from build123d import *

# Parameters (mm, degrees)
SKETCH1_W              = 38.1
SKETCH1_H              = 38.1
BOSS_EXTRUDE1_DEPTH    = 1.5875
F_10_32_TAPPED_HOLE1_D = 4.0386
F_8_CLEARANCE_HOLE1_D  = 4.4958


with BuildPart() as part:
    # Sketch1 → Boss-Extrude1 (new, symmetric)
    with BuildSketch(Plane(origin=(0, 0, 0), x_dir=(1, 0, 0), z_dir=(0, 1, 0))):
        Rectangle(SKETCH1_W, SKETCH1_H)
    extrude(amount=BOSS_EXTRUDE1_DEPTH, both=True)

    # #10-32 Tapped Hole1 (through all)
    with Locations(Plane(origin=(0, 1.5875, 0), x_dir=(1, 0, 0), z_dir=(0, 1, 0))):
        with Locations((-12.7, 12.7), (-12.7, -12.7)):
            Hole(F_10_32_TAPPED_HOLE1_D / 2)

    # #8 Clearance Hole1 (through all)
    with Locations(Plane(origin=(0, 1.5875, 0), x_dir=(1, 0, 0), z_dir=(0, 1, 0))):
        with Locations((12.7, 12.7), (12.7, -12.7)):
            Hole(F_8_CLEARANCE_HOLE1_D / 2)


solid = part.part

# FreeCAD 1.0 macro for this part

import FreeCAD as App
import Part
import Sketcher

V = App.Vector
Q = App.Units.Quantity

doc = App.newDocument("Part")
params = doc.addObject("Spreadsheet::Sheet", "Params")
for row, (alias, value) in enumerate([
    ("sketch1_width", "1.5 in"),
    ("pad1_length", "0.125 in"),
    ("sketch2_diameter", "0.159 in"),
    ("hole_diameter", "0.159 in"),
    ("sketch3_diameter", "0.177 in"),
    ("hole2_diameter", "0.177 in"),
], start=1):
    params.set(f"A{row}", alias)
    params.set(f"B{row}", "=" + value)
    params.setAlias(f"B{row}", alias)

body = doc.addObject("PartDesign::Body", "Body")

# Sketch on XZ plane
sketch1 = body.newObject("Sketcher::SketchObject", "Sketch")
sketch1.AttachmentSupport = (doc.getObject("XZ_Plane"), [""])
sketch1.MapMode = "FlatFace"
sketch1.addGeometry([
    Part.LineSegment(V(-19.05, -19.05, 0), V(-19.05, 19.05, 0)),
    Part.LineSegment(V(-19.05, 19.05, 0), V(19.05, 19.05, 0)),
    Part.LineSegment(V(19.05, 19.05, 0), V(19.05, -19.05, 0)),
    Part.LineSegment(V(19.05, -19.05, 0), V(-19.05, -19.05, 0)),
], False)
sketch1.addConstraint([
    Sketcher.Constraint("Coincident", 0, 2, 1, 1),
    Sketcher.Constraint("Coincident", 1, 2, 2, 1),
    Sketcher.Constraint("Coincident", 2, 2, 3, 1),
    Sketcher.Constraint("Coincident", 3, 2, 0, 1),
    Sketcher.Constraint("Vertical", 0),
    Sketcher.Constraint("Horizontal", 1),
    Sketcher.Constraint("Vertical", 2),
    Sketcher.Constraint("Horizontal", 3),
    Sketcher.Constraint("Symmetric", 0, 2, 2, 2, -1, 1),
    Sketcher.Constraint("Equal", 3, 0),
    Sketcher.Constraint("DistanceX", 1, 1, 1, 2, Q("1.5 in")),
])
sketch1.setExpression("Constraints[10]", "Params.sketch1_width")
pad1 = body.newObject("PartDesign::Pad", "Pad")
pad1.Profile = sketch1
pad1.setExpression("Length", "Params.pad1_length")
pad1.Midplane = True

# Sketch on XZ plane
sketch2 = body.newObject("Sketcher::SketchObject", "Sketch001")
sketch2.AttachmentSupport = (doc.getObject("XZ_Plane"), [""])
sketch2.MapMode = "FlatFace"
sketch2.AttachmentOffset = App.Placement(V(0, 0, -0.0625 * 25.4), App.Rotation())
sketch2.addGeometry([
    Part.Circle(V(-12.7, -12.7, 0), V(0, 0, 1), 2.0193),
    Part.Circle(V(-12.7, 12.7, 0), V(0, 0, 1), 2.0193),
], False)
sketch2.addConstraint([
    Sketcher.Constraint("Equal", 0, 1),
    Sketcher.Constraint("Symmetric", 0, 3, 1, 3, -1),
    Sketcher.Constraint("Diameter", 0, Q("0.159 in")),
    Sketcher.Constraint("DistanceY", 0, 3, 1, 3, Q("1 in")),
    Sketcher.Constraint("DistanceX", 0, 3, -1, 1, Q("0.5 in")),
])
sketch2.setExpression("Constraints[2]", "Params.sketch2_diameter")
doc.recompute()
hole = body.newObject("PartDesign::Hole", "Hole")
hole.Profile = sketch2
hole.ThreadType = "None"
hole.setExpression("Diameter", "Params.hole_diameter")
hole.DepthType = "ThroughAll"
hole.Reversed = True

# Sketch on XZ plane
sketch3 = body.newObject("Sketcher::SketchObject", "Sketch002")
sketch3.AttachmentSupport = (doc.getObject("XZ_Plane"), [""])
sketch3.MapMode = "FlatFace"
sketch3.AttachmentOffset = App.Placement(V(0, 0, -0.0625 * 25.4), App.Rotation())
sketch3.addGeometry([
    Part.Circle(V(12.7, -12.7, 0), V(0, 0, 1), 2.2479),
    Part.Circle(V(12.7, 12.7, 0), V(0, 0, 1), 2.2479),
], False)
sketch3.addConstraint([
    Sketcher.Constraint("Equal", 0, 1),
    Sketcher.Constraint("Symmetric", 0, 3, 1, 3, -1),
    Sketcher.Constraint("Diameter", 0, Q("0.177 in")),
    Sketcher.Constraint("DistanceY", 0, 3, 1, 3, Q("1 in")),
    Sketcher.Constraint("DistanceX", -1, 1, 0, 3, Q("0.5 in")),
])
sketch3.setExpression("Constraints[2]", "Params.sketch3_diameter")
doc.recompute()
hole2 = body.newObject("PartDesign::Hole", "Hole001")
hole2.Profile = sketch3
hole2.ThreadType = "None"
hole2.setExpression("Diameter", "Params.hole2_diameter")
hole2.DepthType = "ThroughAll"
hole2.Reversed = True

doc.recompute()
